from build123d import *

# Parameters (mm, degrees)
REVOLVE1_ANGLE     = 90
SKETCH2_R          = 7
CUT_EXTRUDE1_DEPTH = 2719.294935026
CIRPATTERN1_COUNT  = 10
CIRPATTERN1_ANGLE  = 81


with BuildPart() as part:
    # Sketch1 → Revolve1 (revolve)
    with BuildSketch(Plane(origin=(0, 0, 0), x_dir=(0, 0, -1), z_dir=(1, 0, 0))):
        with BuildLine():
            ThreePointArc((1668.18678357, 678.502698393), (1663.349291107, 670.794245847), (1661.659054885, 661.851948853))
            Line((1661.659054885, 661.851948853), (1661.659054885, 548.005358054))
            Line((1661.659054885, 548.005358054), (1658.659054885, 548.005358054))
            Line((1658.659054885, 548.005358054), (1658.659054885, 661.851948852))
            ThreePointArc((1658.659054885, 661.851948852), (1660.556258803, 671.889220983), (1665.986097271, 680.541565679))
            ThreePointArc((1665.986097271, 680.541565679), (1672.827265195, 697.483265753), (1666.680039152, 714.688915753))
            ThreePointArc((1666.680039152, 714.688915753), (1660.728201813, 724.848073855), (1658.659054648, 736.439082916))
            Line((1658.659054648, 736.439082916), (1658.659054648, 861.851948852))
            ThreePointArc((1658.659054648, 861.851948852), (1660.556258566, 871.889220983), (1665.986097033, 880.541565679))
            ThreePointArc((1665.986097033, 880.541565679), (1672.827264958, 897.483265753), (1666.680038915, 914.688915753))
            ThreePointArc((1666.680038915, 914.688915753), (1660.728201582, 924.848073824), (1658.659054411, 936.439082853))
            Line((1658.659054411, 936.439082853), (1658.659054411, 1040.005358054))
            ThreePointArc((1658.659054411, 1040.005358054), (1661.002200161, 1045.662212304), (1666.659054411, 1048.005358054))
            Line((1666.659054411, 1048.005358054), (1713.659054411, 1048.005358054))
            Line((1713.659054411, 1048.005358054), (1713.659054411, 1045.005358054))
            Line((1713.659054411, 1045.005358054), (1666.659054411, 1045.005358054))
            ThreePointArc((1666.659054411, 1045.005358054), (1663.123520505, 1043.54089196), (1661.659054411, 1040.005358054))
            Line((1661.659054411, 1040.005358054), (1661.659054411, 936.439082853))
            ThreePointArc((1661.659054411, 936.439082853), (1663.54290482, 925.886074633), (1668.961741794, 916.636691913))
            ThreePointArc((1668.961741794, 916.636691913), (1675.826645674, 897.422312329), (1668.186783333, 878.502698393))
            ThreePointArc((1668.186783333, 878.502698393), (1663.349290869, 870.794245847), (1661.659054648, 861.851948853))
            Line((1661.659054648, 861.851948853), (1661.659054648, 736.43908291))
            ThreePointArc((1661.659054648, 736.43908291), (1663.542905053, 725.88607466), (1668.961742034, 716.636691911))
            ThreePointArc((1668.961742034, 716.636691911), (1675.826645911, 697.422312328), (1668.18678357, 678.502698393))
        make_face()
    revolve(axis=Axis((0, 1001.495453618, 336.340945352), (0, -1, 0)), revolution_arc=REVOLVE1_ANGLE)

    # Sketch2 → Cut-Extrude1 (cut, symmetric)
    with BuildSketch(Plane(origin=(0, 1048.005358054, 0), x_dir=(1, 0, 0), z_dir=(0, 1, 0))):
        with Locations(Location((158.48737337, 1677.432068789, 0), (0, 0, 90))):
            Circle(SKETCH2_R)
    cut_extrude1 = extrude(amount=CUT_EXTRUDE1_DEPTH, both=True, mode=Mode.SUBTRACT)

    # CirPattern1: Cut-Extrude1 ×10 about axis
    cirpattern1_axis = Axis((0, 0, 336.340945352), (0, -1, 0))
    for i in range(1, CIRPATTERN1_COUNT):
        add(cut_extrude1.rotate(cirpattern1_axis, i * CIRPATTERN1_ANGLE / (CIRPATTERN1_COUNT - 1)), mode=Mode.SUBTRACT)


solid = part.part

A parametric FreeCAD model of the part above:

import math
import FreeCAD as App
import Part
import Sketcher
Q = App.Units.Quantity

doc = App.newDocument("Part")
body = doc.addObject("PartDesign::Body", "Body")

# Sketch on YZ plane
sketch1 = body.newObject("Sketcher::SketchObject", "Sketch")
sketch1.AttachmentSupport = (doc.getObject("YZ_Plane"), [""])
sketch1.MapMode = "FlatFace"
sketch1.addGeometry([
    Part.ArcOfCircle(Part.Circle(App.Vector(661.9, -1686.2, 0), App.Vector(0, 0, 1), 24.5), math.radians(47), math.radians(90)),  # 0
    Part.ArcOfCircle(Part.Circle(App.Vector(698, -1647.1, 0), App.Vector(0, 0, 1), 28.7), math.radians(-133), math.radians(-50)),  # 1
    Part.ArcOfCircle(Part.Circle(App.Vector(736.4, -1692.2, 0), App.Vector(0, 0, 1), 30.5), math.radians(90), math.radians(130)),  # 2
    Part.LineSegment(App.Vector(736.4, -1661.7, 0), App.Vector(861.9, -1661.7, 0)),  # 3
    Part.ArcOfCircle(Part.Circle(App.Vector(861.9, -1686.2, 0), App.Vector(0, 0, 1), 24.5), math.radians(47), math.radians(90)),  # 4
    Part.ArcOfCircle(Part.Circle(App.Vector(898, -1647.1, 0), App.Vector(0, 0, 1), 28.7), math.radians(-133), math.radians(-50)),  # 5
    Part.ArcOfCircle(Part.Circle(App.Vector(936.4, -1692.2, 0), App.Vector(0, 0, 1), 30.5), math.radians(90), math.radians(130)),  # 6
    Part.LineSegment(App.Vector(936.4, -1661.7, 0), App.Vector(1040, -1661.7, 0)),  # 7
    Part.ArcOfCircle(Part.Circle(App.Vector(1040, -1666.7, 0), App.Vector(0, 0, 1), 5), math.radians(0), math.radians(90)),  # 8
    Part.LineSegment(App.Vector(1045, -1666.7, 0), App.Vector(1045, -1713.7, 0)),  # 9
    Part.LineSegment(App.Vector(1045, -1713.7, 0), App.Vector(1048, -1713.7, 0)),  # 10
    Part.LineSegment(App.Vector(1048, -1713.7, 0), App.Vector(1048, -1666.7, 0)),  # 11
    Part.ArcOfCircle(Part.Circle(App.Vector(1040, -1666.7, 0), App.Vector(0, 0, 1), 8), math.radians(0), math.radians(90)),  # 12
    Part.LineSegment(App.Vector(1040, -1658.7, 0), App.Vector(936.4, -1658.7, 0)),  # 13
    Part.ArcOfCircle(Part.Circle(App.Vector(936.4, -1692.2, 0), App.Vector(0, 0, 1), 33.5), math.radians(90), math.radians(130)),  # 14
    Part.ArcOfCircle(Part.Circle(App.Vector(898, -1647.1, 0), App.Vector(0, 0, 1), 25.7), math.radians(-133), math.radians(-50)),  # 15
    Part.ArcOfCircle(Part.Circle(App.Vector(861.9, -1686.2, 0), App.Vector(0, 0, 1), 27.5), math.radians(47), math.radians(90)),  # 16
    Part.LineSegment(App.Vector(861.9, -1658.7, 0), App.Vector(736.4, -1658.7, 0)),  # 17
    Part.ArcOfCircle(Part.Circle(App.Vector(736.4, -1692.2, 0), App.Vector(0, 0, 1), 33.5), math.radians(90), math.radians(130)),  # 18
    Part.ArcOfCircle(Part.Circle(App.Vector(698, -1647.1, 0), App.Vector(0, 0, 1), 25.7), math.radians(-133), math.radians(-50)),  # 19
    Part.ArcOfCircle(Part.Circle(App.Vector(661.9, -1686.2, 0), App.Vector(0, 0, 1), 27.5), math.radians(47), math.radians(90)),  # 20
    Part.LineSegment(App.Vector(661.9, -1658.7, 0), App.Vector(548, -1658.7, 0)),  # 21
    Part.LineSegment(App.Vector(548, -1658.7, 0), App.Vector(548, -1661.7, 0)),  # 22
    Part.LineSegment(App.Vector(548, -1661.7, 0), App.Vector(661.9, -1661.7, 0)),  # 23
], False)
sketch1.addGeometry(Part.LineSegment(App.Vector(1048, 336.3, 0), App.Vector(548, 336.3, 0)), True)  # axis
sketch1.addConstraint([
    Sketcher.Constraint("Tangent", 0, 1, 1, 1),
    Sketcher.Constraint("Tangent", 1, 2, 2, 2),
    Sketcher.Constraint("Tangent", 2, 1, 3, 1),
    Sketcher.Constraint("Tangent", 3, 2, 4, 2),
    Sketcher.Constraint("Tangent", 4, 1, 5, 1),
    Sketcher.Constraint("Tangent", 5, 2, 6, 2),
    Sketcher.Constraint("Tangent", 6, 1, 7, 1),
    Sketcher.Constraint("Tangent", 7, 2, 8, 2),
    Sketcher.Constraint("Tangent", 8, 1, 9, 1),
    Sketcher.Constraint("Coincident", 9, 2, 10, 1),
    Sketcher.Constraint("Coincident", 10, 2, 11, 1),
    Sketcher.Constraint("Tangent", 11, 2, 12, 1),
    Sketcher.Constraint("Tangent", 12, 2, 13, 1),
    Sketcher.Constraint("Tangent", 13, 2, 14, 1),
    Sketcher.Constraint("Tangent", 14, 2, 15, 2),
    Sketcher.Constraint("Tangent", 15, 1, 16, 1),
    Sketcher.Constraint("Tangent", 16, 2, 17, 1),
    Sketcher.Constraint("Tangent", 17, 2, 18, 1),
    Sketcher.Constraint("Tangent", 18, 2, 19, 2),
    Sketcher.Constraint("Tangent", 19, 1, 20, 1),
    Sketcher.Constraint("Tangent", 20, 2, 21, 1),
    Sketcher.Constraint("Coincident", 21, 2, 22, 1),
    Sketcher.Constraint("Coincident", 22, 2, 23, 1),
    Sketcher.Constraint("Tangent", 23, 2, 0, 2),
    Sketcher.Constraint("Horizontal", 3),
    Sketcher.Constraint("Horizontal", 7),
    Sketcher.Constraint("Vertical", 9),
    Sketcher.Constraint("Horizontal", 10),
    Sketcher.Constraint("Vertical", 11),
    Sketcher.Constraint("Horizontal", 13),
    Sketcher.Constraint("Horizontal", 17),
    Sketcher.Constraint("Horizontal", 21),
    Sketcher.Constraint("Vertical", 22),
    Sketcher.Constraint("Horizontal", 23),
    Sketcher.Constraint("Horizontal", 24),
    Sketcher.Constraint("Coincident", 12, 3, 8, 3),
    Sketcher.Constraint("Coincident", 14, 3, 6, 3),
    Sketcher.Constraint("Coincident", 15, 3, 5, 3),
    Sketcher.Constraint("Coincident", 16, 3, 4, 3),
    Sketcher.Constraint("Coincident", 18, 3, 2, 3),
    Sketcher.Constraint("Coincident", 19, 3, 1, 3),
    Sketcher.Constraint("Coincident", 20, 3, 0, 3),
    Sketcher.Constraint("Equal", 0, 4),
    Sketcher.Constraint("Equal", 1, 5),
    Sketcher.Constraint("Equal", 2, 6),
    Sketcher.Constraint("Horizontal", 0, 3, 4, 3),
    Sketcher.Constraint("Horizontal", 1, 3, 5, 3),
    Sketcher.Constraint("Horizontal", 2, 3, 6, 3),
    Sketcher.Constraint("Vertical", 11, 2, 24, 1),
    Sketcher.Constraint("Vertical", 22, 2, 24, 2),
    Sketcher.Constraint("Radius", 8, Q("5 mm")),
    Sketcher.Constraint("Radius", 12, Q("8 mm")),
    Sketcher.Constraint("Radius", 0, Q("24.5 mm")),
    Sketcher.Constraint("Radius", 2, Q("30.5 mm")),
    Sketcher.Constraint("DistanceX", 24, 2, 24, 1, Q("500 mm")),
    Sketcher.Constraint("DistanceY", 9, 2, 9, 1, Q("47 mm")),
    Sketcher.Constraint("DistanceX", 0, 3, 4, 3, Q("200 mm")),
    Sketcher.Constraint("DistanceX", 5, 3, 8, 3, Q("142 mm")),
    Sketcher.Constraint("DistanceY", 12, 2, 24, 1, Q("1995 mm")),
    Sketcher.Constraint("Radius", 1, Q("28.696316 mm")),
    Sketcher.Constraint("DistanceX", 21, 2, 21, 1, Q("113.846591 mm")),
    Sketcher.Constraint("DistanceX", -1, 1, 0, 1, Q("678.502698 mm")),
    Sketcher.Constraint("DistanceY", 5, 2, -1, 1, Q("1668.961742 mm")),
])
revolution = body.newObject("PartDesign::Revolution", "Revolution")
revolution.Profile = sketch1
revolution.ReferenceAxis = (sketch1, ["Axis0"])
revolution.Angle = 90

# Sketch on XZ plane
sketch2 = body.newObject("Sketcher::SketchObject", "Sketch001")
sketch2.AttachmentSupport = (doc.getObject("XZ_Plane"), [""])
sketch2.MapMode = "FlatFace"
sketch2.AttachmentOffset = App.Placement(App.Vector(0, 0, -1048.005358), App.Rotation())
sketch2.addGeometry(Part.Circle(App.Vector(158, -1677, 0), App.Vector(0, 0, 1), 7), False)
sketch2.addConstraint([
    Sketcher.Constraint("Diameter", 0, Q("14 mm")),
    Sketcher.Constraint("DistanceY", 0, 3, -1, 1, Q("1677.432069 mm")),
    Sketcher.Constraint("DistanceX", -1, 1, 0, 3, Q("158.487373 mm")),
])
pocket1 = body.newObject("PartDesign::Pocket", "Pocket")
pocket1.Profile = sketch2
pocket1.Length = 5438.58987
pocket1.Midplane = True
doc.recompute()

datumline = body.newObject("PartDesign::Line", "DatumLine")
datumline.Placement = App.Placement(App.Vector(0, 0, 336.340945), App.Rotation(App.Vector(0, 0, 1), App.Vector(0, -1, 0)))
polarpattern = body.newObject("PartDesign::PolarPattern", "PolarPattern")
polarpattern.Originals = [pocket1]
polarpattern.Axis = (datumline, [""])
polarpattern.Angle = 81
polarpattern.Occurrences = 10
body.Tip = polarpattern

doc.recompute()
